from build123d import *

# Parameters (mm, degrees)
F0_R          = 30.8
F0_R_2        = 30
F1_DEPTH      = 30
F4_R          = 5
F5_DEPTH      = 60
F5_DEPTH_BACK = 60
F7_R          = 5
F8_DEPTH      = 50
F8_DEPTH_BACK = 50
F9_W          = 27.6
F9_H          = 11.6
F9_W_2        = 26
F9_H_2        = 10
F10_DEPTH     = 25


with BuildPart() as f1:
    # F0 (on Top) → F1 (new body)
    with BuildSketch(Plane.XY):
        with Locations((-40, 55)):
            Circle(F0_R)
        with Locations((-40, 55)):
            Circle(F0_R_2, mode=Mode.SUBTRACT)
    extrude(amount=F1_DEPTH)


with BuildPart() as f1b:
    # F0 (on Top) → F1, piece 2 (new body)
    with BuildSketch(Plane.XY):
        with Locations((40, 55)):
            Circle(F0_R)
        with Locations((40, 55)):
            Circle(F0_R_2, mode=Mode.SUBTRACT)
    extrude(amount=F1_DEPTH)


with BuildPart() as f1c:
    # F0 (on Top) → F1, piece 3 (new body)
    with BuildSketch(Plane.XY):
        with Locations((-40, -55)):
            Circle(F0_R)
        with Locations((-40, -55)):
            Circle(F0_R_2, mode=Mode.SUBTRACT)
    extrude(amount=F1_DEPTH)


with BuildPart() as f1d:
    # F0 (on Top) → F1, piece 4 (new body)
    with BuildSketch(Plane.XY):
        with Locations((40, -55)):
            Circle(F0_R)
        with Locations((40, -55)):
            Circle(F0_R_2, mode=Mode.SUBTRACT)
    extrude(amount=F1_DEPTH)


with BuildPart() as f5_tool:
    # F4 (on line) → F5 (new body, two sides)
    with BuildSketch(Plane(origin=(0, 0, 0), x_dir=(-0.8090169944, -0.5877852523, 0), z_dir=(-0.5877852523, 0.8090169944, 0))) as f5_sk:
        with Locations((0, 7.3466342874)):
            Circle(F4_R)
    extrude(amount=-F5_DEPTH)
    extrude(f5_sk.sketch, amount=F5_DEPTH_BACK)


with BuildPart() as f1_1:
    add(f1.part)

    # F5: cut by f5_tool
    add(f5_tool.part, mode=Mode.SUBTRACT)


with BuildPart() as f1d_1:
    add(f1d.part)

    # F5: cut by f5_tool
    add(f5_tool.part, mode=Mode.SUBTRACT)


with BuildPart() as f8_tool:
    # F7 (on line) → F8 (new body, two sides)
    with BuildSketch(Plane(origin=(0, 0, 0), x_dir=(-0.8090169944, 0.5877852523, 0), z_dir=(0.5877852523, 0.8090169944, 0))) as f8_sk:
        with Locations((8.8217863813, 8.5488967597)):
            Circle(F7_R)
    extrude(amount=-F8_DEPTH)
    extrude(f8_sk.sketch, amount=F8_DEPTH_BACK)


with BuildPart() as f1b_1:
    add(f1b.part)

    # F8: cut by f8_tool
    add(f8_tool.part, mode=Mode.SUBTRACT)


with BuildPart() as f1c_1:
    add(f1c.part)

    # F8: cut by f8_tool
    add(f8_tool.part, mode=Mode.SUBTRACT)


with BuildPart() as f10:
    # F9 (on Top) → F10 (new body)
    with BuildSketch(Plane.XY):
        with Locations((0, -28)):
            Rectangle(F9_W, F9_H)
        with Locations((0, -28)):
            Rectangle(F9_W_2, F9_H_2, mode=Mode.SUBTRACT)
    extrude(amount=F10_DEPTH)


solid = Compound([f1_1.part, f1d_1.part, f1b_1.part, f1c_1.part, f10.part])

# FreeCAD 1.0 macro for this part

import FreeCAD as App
import Part
import Sketcher
from FreeCAD import Vector

doc = App.newDocument("Part")
body = doc.addObject("PartDesign::Body", "Body")

# Sketch on XY plane
sketch1 = body.newObject("Sketcher::SketchObject", "Sketch")
sketch1.AttachmentSupport = (doc.getObject("XY_Plane"), [""])
sketch1.MapMode = "FlatFace"
sketch1.addGeometry(Part.Circle(Vector(-40, 55, 0), Vector(0, 0, 1), 31), False)
sketch1.addGeometry(Part.Circle(Vector(-40, 55, 0), Vector(0, 0, 1), 30), False)
sketch1.addConstraint(Sketcher.Constraint("Coincident", 1, 3, 0, 3))
sketch1.addConstraint(Sketcher.Constraint("Diameter", 1, 60.0))
sketch1.addConstraint(Sketcher.Constraint("Diameter", 0, 61.6))
sketch1.addConstraint(Sketcher.Constraint("DistanceX", 0, 3, -1, 1, 40.0))
sketch1.addConstraint(Sketcher.Constraint("DistanceY", -1, 1, 0, 3, 55.0))
pad1 = body.newObject("PartDesign::Pad", "Pad")
pad1.Profile = sketch1
pad1.Length = 30
body2 = doc.addObject("PartDesign::Body", "Body001")

# Sketch on XY plane
sketch2 = body2.newObject("Sketcher::SketchObject", "Sketch001")
sketch2.AttachmentSupport = (doc.getObject("XY_Plane001"), [""])
sketch2.MapMode = "FlatFace"
sketch2.addGeometry(Part.Circle(Vector(40, 55, 0), Vector(0, 0, 1), 31), False)
sketch2.addGeometry(Part.Circle(Vector(40, 55, 0), Vector(0, 0, 1), 30), False)
sketch2.addConstraint(Sketcher.Constraint("Coincident", 1, 3, 0, 3))
sketch2.addConstraint(Sketcher.Constraint("Diameter", 1, 60.0))
sketch2.addConstraint(Sketcher.Constraint("Diameter", 0, 61.6))
sketch2.addConstraint(Sketcher.Constraint("DistanceX", -1, 1, 0, 3, 40.0))
sketch2.addConstraint(Sketcher.Constraint("DistanceY", -1, 1, 0, 3, 55.0))
pad2 = body2.newObject("PartDesign::Pad", "Pad001")
pad2.Profile = sketch2
pad2.Length = 30
body3 = doc.addObject("PartDesign::Body", "Body002")

# Sketch on XY plane
sketch3 = body3.newObject("Sketcher::SketchObject", "Sketch002")
sketch3.AttachmentSupport = (doc.getObject("XY_Plane002"), [""])
sketch3.MapMode = "FlatFace"
sketch3.addGeometry(Part.Circle(Vector(-40, -55, 0), Vector(0, 0, 1), 31), False)
sketch3.addGeometry(Part.Circle(Vector(-40, -55, 0), Vector(0, 0, 1), 30), False)
sketch3.addConstraint(Sketcher.Constraint("Coincident", 1, 3, 0, 3))
sketch3.addConstraint(Sketcher.Constraint("Diameter", 1, 60.0))
sketch3.addConstraint(Sketcher.Constraint("Diameter", 0, 61.6))
sketch3.addConstraint(Sketcher.Constraint("DistanceX", 0, 3, -1, 1, 40.0))
sketch3.addConstraint(Sketcher.Constraint("DistanceY", 0, 3, -1, 1, 55.0))
pad3 = body3.newObject("PartDesign::Pad", "Pad002")
pad3.Profile = sketch3
pad3.Length = 30
body4 = doc.addObject("PartDesign::Body", "Body003")

# Sketch on XY plane
sketch4 = body4.newObject("Sketcher::SketchObject", "Sketch003")
sketch4.AttachmentSupport = (doc.getObject("XY_Plane003"), [""])
sketch4.MapMode = "FlatFace"
sketch4.addGeometry(Part.Circle(Vector(40, -55, 0), Vector(0, 0, 1), 31), False)
sketch4.addGeometry(Part.Circle(Vector(40, -55, 0), Vector(0, 0, 1), 30), False)
sketch4.addConstraint(Sketcher.Constraint("Coincident", 1, 3, 0, 3))
sketch4.addConstraint(Sketcher.Constraint("Diameter", 1, 60.0))
sketch4.addConstraint(Sketcher.Constraint("Diameter", 0, 61.6))
sketch4.addConstraint(Sketcher.Constraint("DistanceX", -1, 1, 0, 3, 40.0))
sketch4.addConstraint(Sketcher.Constraint("DistanceY", 0, 3, -1, 1, 55.0))
pad4 = body4.newObject("PartDesign::Pad", "Pad003")
pad4.Profile = sketch4
pad4.Length = 30
body5 = doc.addObject("PartDesign::Body", "Body004")

# Sketch on an angled plane
sketch5 = body5.newObject("Sketcher::SketchObject", "Sketch004")
sketch5.Placement = App.Placement(Vector(0, 0, 0), App.Rotation(Vector(-0.809016994, -0.587785252, 0), Vector(0, 0, 0.999999999), Vector(-0.587785252, 0.809016994, 0), "ZXY"))
sketch5.addGeometry(Part.Circle(Vector(0, 7, 0), Vector(0, 0, 1), 5), False)
sketch5.addConstraint(Sketcher.Constraint("PointOnObject", 0, 3, -2))
sketch5.addConstraint(Sketcher.Constraint("Diameter", 0, 10.0))
sketch5.addConstraint(Sketcher.Constraint("DistanceY", -1, 1, 0, 3, 7.346634))
pad5 = body5.newObject("PartDesign::Pad", "Pad004")
pad5.Profile = sketch5
pad5.Type = "TwoLengths"
pad5.Length = 60
pad5.Length2 = 60
pad5.Reversed = True
doc.recompute()

body6 = doc.addObject("PartDesign::Body", "Body005")
body6.BaseFeature = body5
boolean = body.newObject("PartDesign::Boolean", "Boolean")
boolean.Type = "Cut"
boolean.addObjects([body6])
doc.recompute()

boolean2 = body4.newObject("PartDesign::Boolean", "Boolean001")
boolean2.Type = "Cut"
boolean2.addObjects([body5])
body7 = doc.addObject("PartDesign::Body", "Body006")

# Sketch on an angled plane
sketch6 = body7.newObject("Sketcher::SketchObject", "Sketch005")
sketch6.Placement = App.Placement(Vector(0, 0, 0), App.Rotation(Vector(-0.809016994, 0.587785252, 0), Vector(0, 0, 0.999999999), Vector(0.587785252, 0.809016994, 0), "ZXY"))
sketch6.addGeometry(Part.Circle(Vector(9, 9, 0), Vector(0, 0, 1), 5), False)
sketch6.addConstraint(Sketcher.Constraint("Diameter", 0, 10.0))
sketch6.addConstraint(Sketcher.Constraint("DistanceX", -1, 1, 0, 3, 8.821786))
sketch6.addConstraint(Sketcher.Constraint("DistanceY", -1, 1, 0, 3, 8.548897))
pad6 = body7.newObject("PartDesign::Pad", "Pad005")
pad6.Profile = sketch6
pad6.Type = "TwoLengths"
pad6.Length = 50
pad6.Length2 = 50
pad6.Reversed = True
doc.recompute()

body8 = doc.addObject("PartDesign::Body", "Body007")
body8.BaseFeature = body7
boolean3 = body2.newObject("PartDesign::Boolean", "Boolean002")
boolean3.Type = "Cut"
boolean3.addObjects([body8])
doc.recompute()

boolean4 = body3.newObject("PartDesign::Boolean", "Boolean003")
boolean4.Type = "Cut"
boolean4.addObjects([body7])
body9 = doc.addObject("PartDesign::Body", "Body008")

# Sketch on XY plane
sketch7 = body9.newObject("Sketcher::SketchObject", "Sketch006")
sketch7.AttachmentSupport = (doc.getObject("XY_Plane008"), [""])
sketch7.MapMode = "FlatFace"
sketch7.addGeometry(Part.LineSegment(Vector(-14, -22, 0), Vector(-14, -34, 0)), False)
sketch7.addGeometry(Part.LineSegment(Vector(-14, -34, 0), Vector(14, -34, 0)), False)
sketch7.addGeometry(Part.LineSegment(Vector(14, -34, 0), Vector(14, -22, 0)), False)
sketch7.addGeometry(Part.LineSegment(Vector(14, -22, 0), Vector(-14, -22, 0)), False)
sketch7.addGeometry(Part.LineSegment(Vector(13, -33, 0), Vector(-13, -33, 0)), False)
sketch7.addGeometry(Part.LineSegment(Vector(-13, -33, 0), Vector(-13, -23, 0)), False)
sketch7.addGeometry(Part.LineSegment(Vector(-13, -23, 0), Vector(13, -23, 0)), False)
sketch7.addGeometry(Part.LineSegment(Vector(13, -23, 0), Vector(13, -33, 0)), False)
sketch7.addConstraint(Sketcher.Constraint("Coincident", 0, 2, 1, 1))
sketch7.addConstraint(Sketcher.Constraint("Coincident", 1, 2, 2, 1))
sketch7.addConstraint(Sketcher.Constraint("Coincident", 2, 2, 3, 1))
sketch7.addConstraint(Sketcher.Constraint("Coincident", 3, 2, 0, 1))
sketch7.addConstraint(Sketcher.Constraint("Coincident", 4, 2, 5, 1))
sketch7.addConstraint(Sketcher.Constraint("Coincident", 5, 2, 6, 1))
sketch7.addConstraint(Sketcher.Constraint("Coincident", 6, 2, 7, 1))
sketch7.addConstraint(Sketcher.Constraint("Coincident", 7, 2, 4, 1))
sketch7.addConstraint(Sketcher.Constraint("Vertical", 0))
sketch7.addConstraint(Sketcher.Constraint("Horizontal", 1))
sketch7.addConstraint(Sketcher.Constraint("Vertical", 2))
sketch7.addConstraint(Sketcher.Constraint("Horizontal", 3))
sketch7.addConstraint(Sketcher.Constraint("Horizontal", 4))
sketch7.addConstraint(Sketcher.Constraint("Vertical", 5))
sketch7.addConstraint(Sketcher.Constraint("Horizontal", 6))
sketch7.addConstraint(Sketcher.Constraint("Vertical", 7))
sketch7.addConstraint(Sketcher.Constraint("DistanceX", 4, 2, 4, 1, 26.0))
sketch7.addConstraint(Sketcher.Constraint("DistanceY", 5, 1, 5, 2, 10.0))
sketch7.addConstraint(Sketcher.Constraint("DistanceX", 1, 1, 1, 2, 27.6))
sketch7.addConstraint(Sketcher.Constraint("DistanceY", 0, 2, 0, 1, 11.6))
sketch7.addConstraint(Sketcher.Constraint("DistanceX", 4, 2, -1, 1, 13.0))
sketch7.addConstraint(Sketcher.Constraint("DistanceY", 4, 2, -1, 1, 33.0))
sketch7.addConstraint(Sketcher.Constraint("DistanceX", 0, 2, -1, 1, 13.8))
sketch7.addConstraint(Sketcher.Constraint("DistanceY", 0, 2, -1, 1, 33.8))
pad7 = body9.newObject("PartDesign::Pad", "Pad006")
pad7.Profile = sketch7
pad7.Length = 25

doc.recompute()
